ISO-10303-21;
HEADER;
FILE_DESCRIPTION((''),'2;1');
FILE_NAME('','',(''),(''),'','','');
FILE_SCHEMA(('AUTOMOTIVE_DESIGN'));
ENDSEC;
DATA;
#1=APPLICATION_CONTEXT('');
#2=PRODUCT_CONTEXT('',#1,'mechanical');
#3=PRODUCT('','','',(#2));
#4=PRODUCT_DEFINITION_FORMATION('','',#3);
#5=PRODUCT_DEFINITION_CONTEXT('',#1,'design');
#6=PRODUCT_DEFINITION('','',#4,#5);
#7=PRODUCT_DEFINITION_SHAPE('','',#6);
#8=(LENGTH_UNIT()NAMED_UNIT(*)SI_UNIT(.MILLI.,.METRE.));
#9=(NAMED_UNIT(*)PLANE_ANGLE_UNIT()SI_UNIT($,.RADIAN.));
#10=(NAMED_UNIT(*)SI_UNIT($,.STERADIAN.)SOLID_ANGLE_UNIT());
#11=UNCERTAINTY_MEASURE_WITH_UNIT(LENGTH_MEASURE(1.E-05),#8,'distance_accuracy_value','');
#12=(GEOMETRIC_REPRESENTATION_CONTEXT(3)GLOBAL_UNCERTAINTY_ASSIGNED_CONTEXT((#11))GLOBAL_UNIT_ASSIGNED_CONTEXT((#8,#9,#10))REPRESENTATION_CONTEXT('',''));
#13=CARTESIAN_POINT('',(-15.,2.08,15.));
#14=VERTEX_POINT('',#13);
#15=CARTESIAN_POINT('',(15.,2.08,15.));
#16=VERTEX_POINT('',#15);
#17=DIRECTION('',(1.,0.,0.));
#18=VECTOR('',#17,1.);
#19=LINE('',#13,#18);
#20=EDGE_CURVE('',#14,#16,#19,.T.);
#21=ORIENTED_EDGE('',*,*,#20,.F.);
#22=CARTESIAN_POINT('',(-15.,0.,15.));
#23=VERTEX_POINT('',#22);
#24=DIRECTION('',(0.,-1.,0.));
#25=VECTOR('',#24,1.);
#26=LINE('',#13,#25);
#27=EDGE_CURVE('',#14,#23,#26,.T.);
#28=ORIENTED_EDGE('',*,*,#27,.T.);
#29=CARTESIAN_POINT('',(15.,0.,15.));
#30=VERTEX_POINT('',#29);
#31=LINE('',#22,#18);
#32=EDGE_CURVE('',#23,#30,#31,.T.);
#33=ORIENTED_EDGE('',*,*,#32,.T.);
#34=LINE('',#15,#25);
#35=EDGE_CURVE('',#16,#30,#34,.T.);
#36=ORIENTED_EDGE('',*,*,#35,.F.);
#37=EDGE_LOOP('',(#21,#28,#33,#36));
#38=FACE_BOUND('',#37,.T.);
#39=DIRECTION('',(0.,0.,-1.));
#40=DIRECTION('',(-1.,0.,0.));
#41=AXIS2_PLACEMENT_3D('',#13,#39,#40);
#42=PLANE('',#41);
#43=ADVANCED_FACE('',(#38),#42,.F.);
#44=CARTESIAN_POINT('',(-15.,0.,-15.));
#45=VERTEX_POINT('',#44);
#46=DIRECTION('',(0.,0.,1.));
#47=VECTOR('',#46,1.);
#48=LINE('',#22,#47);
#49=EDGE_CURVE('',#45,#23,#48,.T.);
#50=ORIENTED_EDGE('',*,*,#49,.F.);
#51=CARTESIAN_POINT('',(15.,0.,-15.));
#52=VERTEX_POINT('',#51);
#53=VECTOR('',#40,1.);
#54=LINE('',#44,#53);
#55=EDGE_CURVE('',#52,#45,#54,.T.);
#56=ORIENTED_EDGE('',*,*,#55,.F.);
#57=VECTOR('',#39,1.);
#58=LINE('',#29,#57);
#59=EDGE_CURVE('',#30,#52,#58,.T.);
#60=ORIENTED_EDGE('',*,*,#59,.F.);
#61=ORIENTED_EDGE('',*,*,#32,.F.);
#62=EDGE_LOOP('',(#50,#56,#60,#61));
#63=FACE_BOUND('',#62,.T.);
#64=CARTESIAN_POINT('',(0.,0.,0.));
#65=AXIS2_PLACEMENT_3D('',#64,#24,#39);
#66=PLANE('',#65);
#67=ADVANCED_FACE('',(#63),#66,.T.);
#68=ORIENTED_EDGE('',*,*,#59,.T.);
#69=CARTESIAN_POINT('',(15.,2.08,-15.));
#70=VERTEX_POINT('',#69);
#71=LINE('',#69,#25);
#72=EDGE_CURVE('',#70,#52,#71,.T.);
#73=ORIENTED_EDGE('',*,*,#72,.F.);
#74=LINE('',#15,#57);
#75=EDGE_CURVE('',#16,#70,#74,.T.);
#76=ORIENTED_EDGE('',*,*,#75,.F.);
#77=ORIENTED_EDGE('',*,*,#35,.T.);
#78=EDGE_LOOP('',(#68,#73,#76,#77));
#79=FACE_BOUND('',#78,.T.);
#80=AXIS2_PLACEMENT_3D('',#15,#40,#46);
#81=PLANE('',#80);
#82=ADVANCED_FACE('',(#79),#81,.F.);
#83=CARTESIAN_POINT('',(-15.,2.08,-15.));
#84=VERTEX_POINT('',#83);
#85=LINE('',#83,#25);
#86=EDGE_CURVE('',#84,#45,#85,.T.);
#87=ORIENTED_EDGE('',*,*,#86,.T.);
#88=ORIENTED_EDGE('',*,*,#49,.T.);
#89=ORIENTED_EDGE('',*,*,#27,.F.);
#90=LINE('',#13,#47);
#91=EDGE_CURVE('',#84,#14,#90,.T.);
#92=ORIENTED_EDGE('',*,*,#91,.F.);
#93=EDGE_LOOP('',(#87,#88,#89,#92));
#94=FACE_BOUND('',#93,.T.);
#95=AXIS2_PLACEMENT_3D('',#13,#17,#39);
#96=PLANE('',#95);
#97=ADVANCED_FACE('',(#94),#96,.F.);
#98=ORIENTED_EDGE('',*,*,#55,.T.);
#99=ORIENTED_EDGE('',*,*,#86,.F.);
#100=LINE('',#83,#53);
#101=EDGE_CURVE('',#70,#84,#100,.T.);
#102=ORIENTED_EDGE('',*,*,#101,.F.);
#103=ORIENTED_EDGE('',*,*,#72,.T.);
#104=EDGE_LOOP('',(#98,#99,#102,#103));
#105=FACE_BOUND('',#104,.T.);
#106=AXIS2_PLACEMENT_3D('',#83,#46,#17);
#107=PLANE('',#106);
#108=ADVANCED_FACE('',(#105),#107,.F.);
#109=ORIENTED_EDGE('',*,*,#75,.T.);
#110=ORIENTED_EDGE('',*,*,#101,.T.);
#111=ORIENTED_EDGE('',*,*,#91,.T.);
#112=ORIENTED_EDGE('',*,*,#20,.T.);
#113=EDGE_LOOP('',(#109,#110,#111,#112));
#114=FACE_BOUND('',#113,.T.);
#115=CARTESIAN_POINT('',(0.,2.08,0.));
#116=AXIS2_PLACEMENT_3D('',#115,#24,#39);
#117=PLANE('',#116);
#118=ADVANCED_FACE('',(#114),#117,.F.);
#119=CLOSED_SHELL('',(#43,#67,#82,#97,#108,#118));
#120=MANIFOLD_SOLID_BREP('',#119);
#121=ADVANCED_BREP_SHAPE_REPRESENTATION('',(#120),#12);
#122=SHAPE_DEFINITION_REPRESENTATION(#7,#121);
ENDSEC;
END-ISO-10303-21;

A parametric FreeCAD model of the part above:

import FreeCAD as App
import Part
import Sketcher

doc = App.newDocument("Part")
body = doc.addObject("PartDesign::Body", "Body")

# Sketch on XZ plane
sketch1 = body.newObject("Sketcher::SketchObject", "Sketch")
sketch1.AttachmentSupport = (doc.getObject("XZ_Plane"), [""])
sketch1.MapMode = "FlatFace"
sketch1.addGeometry(Part.LineSegment(App.Vector(-15, -15, 0), App.Vector(-15, 15, 0)), False)
sketch1.addGeometry(Part.LineSegment(App.Vector(-15, 15, 0), App.Vector(15, 15, 0)), False)
sketch1.addGeometry(Part.LineSegment(App.Vector(15, 15, 0), App.Vector(15, -15, 0)), False)
sketch1.addGeometry(Part.LineSegment(App.Vector(15, -15, 0), App.Vector(-15, -15, 0)), False)
sketch1.addConstraint(Sketcher.Constraint("Coincident", 0, 2, 1, 1))
sketch1.addConstraint(Sketcher.Constraint("Coincident", 1, 2, 2, 1))
sketch1.addConstraint(Sketcher.Constraint("Coincident", 2, 2, 3, 1))
sketch1.addConstraint(Sketcher.Constraint("Coincident", 3, 2, 0, 1))
sketch1.addConstraint(Sketcher.Constraint("Vertical", 0))
sketch1.addConstraint(Sketcher.Constraint("Horizontal", 1))
sketch1.addConstraint(Sketcher.Constraint("Vertical", 2))
sketch1.addConstraint(Sketcher.Constraint("Horizontal", 3))
sketch1.addConstraint(Sketcher.Constraint("Symmetric", 0, 2, 2, 2, -1, 1))
sketch1.addConstraint(Sketcher.Constraint("Equal", 3, 0))
sketch1.addConstraint(Sketcher.Constraint("DistanceX", 1, 1, 1, 2, 30.0))
pad1 = body.newObject("PartDesign::Pad", "Pad")
pad1.Profile = sketch1
pad1.Length = 2.08
pad1.Reversed = True

doc.recompute()
